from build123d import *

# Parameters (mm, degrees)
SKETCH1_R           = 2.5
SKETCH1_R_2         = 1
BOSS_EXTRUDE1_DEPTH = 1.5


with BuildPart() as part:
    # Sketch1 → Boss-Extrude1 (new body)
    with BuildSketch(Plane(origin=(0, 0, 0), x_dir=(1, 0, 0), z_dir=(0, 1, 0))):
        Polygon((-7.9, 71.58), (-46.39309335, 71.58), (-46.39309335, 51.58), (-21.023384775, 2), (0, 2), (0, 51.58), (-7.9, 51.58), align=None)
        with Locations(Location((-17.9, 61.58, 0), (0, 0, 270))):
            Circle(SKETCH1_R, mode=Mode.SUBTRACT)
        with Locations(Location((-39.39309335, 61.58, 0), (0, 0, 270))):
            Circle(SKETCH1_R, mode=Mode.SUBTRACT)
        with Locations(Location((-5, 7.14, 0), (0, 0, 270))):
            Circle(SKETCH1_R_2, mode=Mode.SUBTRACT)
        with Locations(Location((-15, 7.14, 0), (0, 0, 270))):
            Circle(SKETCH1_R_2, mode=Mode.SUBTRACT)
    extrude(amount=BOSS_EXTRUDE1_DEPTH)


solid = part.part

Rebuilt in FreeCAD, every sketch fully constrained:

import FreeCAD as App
import Part
import Sketcher


def add_polygon(sketch, points):
    """Adds a closed chain of lines whose ends are joined by coincident constraints."""
    first, n = sketch.GeometryCount, len(points)
    for a, b in zip(points, points[1:] + points[:1]):
        sketch.addGeometry(Part.LineSegment(App.Vector(*a, 0), App.Vector(*b, 0)), False)
    for i in range(n):
        sketch.addConstraint(Sketcher.Constraint("Coincident", first + i, 2, first + (i + 1) % n, 1))

doc = App.newDocument("Part")
body = doc.addObject("PartDesign::Body", "Body")

# Sketch on XZ plane
sketch1 = doc.addObject("Sketcher::SketchObject", "Sketch")
body.addObject(sketch1)
sketch1.AttachmentSupport = (doc.XZ_Plane, [""])
sketch1.MapMode = "FlatFace"
add_polygon(sketch1, [(-7.9, -71.6), (-46.4, -71.6), (-46.4, -51.6), (-21, -2), (0, -2), (0, -51.6), (-7.9, -51.6)])  # lines 0-6
sketch1.addGeometry(Part.Circle(App.Vector(-15, -7.1, 0), App.Vector(0, 0, 1), 1), False)  # 7
sketch1.addGeometry(Part.Circle(App.Vector(-5, -7.1, 0), App.Vector(0, 0, 1), 1), False)  # 8
sketch1.addGeometry(Part.Circle(App.Vector(-39.4, -61.6, 0), App.Vector(0, 0, 1), 2.5), False)  # 9
sketch1.addGeometry(Part.Circle(App.Vector(-17.9, -61.6, 0), App.Vector(0, 0, 1), 2.5), False)  # 10
sketch1.addConstraint(Sketcher.Constraint("Horizontal", 0))
sketch1.addConstraint(Sketcher.Constraint("Vertical", 1))
sketch1.addConstraint(Sketcher.Constraint("Horizontal", 3))
sketch1.addConstraint(Sketcher.Constraint("Vertical", 4))
sketch1.addConstraint(Sketcher.Constraint("Horizontal", 5))
sketch1.addConstraint(Sketcher.Constraint("Vertical", 6))
sketch1.addConstraint(Sketcher.Constraint("Equal", 7, 8))
sketch1.addConstraint(Sketcher.Constraint("Equal", 9, 10))
sketch1.addConstraint(Sketcher.Constraint("PointOnObject", 3, 2, -2))
sketch1.addConstraint(Sketcher.Constraint("Horizontal", 7, 3, 8, 3))
sketch1.addConstraint(Sketcher.Constraint("Horizontal", 9, 3, 10, 3))
sketch1.addConstraint(Sketcher.Constraint("Horizontal", 1, 2, 4, 2))
sketch1.addConstraint(Sketcher.Constraint("Diameter", 7, 2.0))
sketch1.addConstraint(Sketcher.Constraint("Diameter", 9, 5.0))
sketch1.addConstraint(Sketcher.Constraint("DistanceY", 1, 1, 1, 2, 20.0))
sketch1.addConstraint(Sketcher.Constraint("DistanceX", 5, 2, 5, 1, 7.9))
sketch1.addConstraint(Sketcher.Constraint("DistanceX", 7, 3, -1, 1, 15.0))
sketch1.addConstraint(Sketcher.Constraint("DistanceX", 8, 3, -1, 1, 5.0))
sketch1.addConstraint(Sketcher.Constraint("DistanceY", 2, 2, -1, 1, 2.0))
sketch1.addConstraint(Sketcher.Constraint("DistanceX", 0, 2, 9, 3, 7.0))
sketch1.addConstraint(Sketcher.Constraint("DistanceY", 0, 2, 9, 3, 10.0))
sketch1.addConstraint(Sketcher.Constraint("DistanceX", 10, 3, 5, 2, 10.0))
sketch1.addConstraint(Sketcher.Constraint("DistanceY", 4, 2, 4, 1, 49.58))
sketch1.addConstraint(Sketcher.Constraint("DistanceY", 7, 3, -1, 1, 7.14))
sketch1.addConstraint(Sketcher.Constraint("DistanceX", 0, 2, 0, 1, 38.493093))
sketch1.addConstraint(Sketcher.Constraint("DistanceX", 3, 1, 3, 2, 21.023385))
pad1 = doc.addObject("PartDesign::Pad", "Pad")
body.addObject(pad1)
pad1.Profile = sketch1
pad1.Length = 1.5
pad1.Reversed = True

doc.recompute()
